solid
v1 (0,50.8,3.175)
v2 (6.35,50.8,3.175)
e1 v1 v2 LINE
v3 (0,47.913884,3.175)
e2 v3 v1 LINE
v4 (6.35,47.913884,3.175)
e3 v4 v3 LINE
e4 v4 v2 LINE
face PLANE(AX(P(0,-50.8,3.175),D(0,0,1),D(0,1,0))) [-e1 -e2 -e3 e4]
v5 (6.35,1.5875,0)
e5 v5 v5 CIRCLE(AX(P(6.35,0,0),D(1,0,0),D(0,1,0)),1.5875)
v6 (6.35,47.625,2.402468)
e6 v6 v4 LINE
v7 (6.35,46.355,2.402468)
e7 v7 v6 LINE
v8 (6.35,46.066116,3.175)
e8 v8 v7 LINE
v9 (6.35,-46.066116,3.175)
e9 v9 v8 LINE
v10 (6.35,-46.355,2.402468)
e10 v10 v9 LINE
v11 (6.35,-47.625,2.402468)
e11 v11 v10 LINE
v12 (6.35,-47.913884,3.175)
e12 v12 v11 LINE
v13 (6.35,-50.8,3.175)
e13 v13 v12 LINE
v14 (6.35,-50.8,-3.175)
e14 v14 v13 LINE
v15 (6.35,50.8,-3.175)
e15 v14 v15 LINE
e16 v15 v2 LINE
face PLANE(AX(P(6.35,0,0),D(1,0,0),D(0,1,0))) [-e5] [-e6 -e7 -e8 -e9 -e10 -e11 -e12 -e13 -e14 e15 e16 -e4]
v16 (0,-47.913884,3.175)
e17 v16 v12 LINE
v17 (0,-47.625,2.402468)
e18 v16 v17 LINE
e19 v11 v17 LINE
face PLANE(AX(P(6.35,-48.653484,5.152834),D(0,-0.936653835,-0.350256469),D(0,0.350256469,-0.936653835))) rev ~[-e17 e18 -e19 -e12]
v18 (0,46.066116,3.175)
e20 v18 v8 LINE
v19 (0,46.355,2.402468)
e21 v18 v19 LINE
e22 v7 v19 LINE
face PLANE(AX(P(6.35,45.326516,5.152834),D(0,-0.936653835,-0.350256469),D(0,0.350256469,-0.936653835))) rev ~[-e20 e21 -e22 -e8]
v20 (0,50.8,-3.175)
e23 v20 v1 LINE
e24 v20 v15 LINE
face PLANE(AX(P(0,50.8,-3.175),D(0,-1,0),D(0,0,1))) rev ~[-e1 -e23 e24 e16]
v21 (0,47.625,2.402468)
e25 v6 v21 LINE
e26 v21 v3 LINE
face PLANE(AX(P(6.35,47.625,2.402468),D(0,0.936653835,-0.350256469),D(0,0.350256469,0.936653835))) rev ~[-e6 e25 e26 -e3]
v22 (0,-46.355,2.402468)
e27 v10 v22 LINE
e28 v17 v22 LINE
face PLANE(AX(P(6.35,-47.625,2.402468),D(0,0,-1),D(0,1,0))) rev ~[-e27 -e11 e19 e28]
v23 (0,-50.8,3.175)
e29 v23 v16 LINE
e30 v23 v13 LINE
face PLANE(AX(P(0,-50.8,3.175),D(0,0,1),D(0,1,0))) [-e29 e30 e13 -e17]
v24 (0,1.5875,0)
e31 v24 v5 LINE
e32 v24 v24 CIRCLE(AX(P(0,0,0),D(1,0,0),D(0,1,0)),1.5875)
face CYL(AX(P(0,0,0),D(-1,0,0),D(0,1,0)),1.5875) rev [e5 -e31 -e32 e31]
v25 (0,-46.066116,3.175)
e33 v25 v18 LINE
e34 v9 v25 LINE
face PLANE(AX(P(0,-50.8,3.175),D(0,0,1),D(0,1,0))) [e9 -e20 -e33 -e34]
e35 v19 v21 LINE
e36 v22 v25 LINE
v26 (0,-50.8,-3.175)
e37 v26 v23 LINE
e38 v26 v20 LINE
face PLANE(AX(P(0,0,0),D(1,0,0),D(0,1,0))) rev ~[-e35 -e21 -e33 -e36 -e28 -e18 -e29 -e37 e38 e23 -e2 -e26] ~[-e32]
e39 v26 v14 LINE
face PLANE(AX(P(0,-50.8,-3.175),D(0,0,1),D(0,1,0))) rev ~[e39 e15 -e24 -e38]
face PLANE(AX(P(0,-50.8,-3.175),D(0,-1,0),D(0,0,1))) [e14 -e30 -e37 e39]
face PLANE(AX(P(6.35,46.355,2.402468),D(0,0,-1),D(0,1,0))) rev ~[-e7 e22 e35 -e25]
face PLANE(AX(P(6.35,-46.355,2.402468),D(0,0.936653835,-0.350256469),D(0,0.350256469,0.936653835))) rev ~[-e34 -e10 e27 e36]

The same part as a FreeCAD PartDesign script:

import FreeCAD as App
import Part
import Sketcher
from FreeCAD import Vector
Q = App.Units.Quantity

doc = App.newDocument("Part")
params = doc.addObject("Spreadsheet::Sheet", "Params")
for row, (alias, value) in enumerate([
    ("sketch1_width", "4 in"),
    ("sketch1_diameter", "0.125 in"),
    ("sketch1_height", "0.25 in"),
    ("pad1_length", "0.25 in"),
    ("sketch2_width", "0.05 in"),
    ("pocket1_length", "0.3 in"),
], start=1):
    params.set(f"A{row}", alias)
    params.set(f"B{row}", "=" + value)
    params.setAlias(f"B{row}", alias)

body = doc.addObject("PartDesign::Body", "Body")

# Sketch on YZ plane
sketch1 = body.newObject("Sketcher::SketchObject", "Sketch")
sketch1.AttachmentSupport = (doc.getObject("YZ_Plane"), [""])
sketch1.MapMode = "FlatFace"
sketch1.addGeometry([
    Part.LineSegment(Vector(-50.8, 3.2, 0), Vector(-50.8, -3.2, 0)),  # 0
    Part.LineSegment(Vector(-50.8, -3.2, 0), Vector(50.8, -3.2, 0)),  # 1
    Part.LineSegment(Vector(50.8, -3.2, 0), Vector(50.8, 3.2, 0)),  # 2
    Part.LineSegment(Vector(50.8, 3.2, 0), Vector(-50.8, 3.2, 0)),  # 3
    Part.Circle(Vector(0, 0, 0), Vector(0, 0, 1), 1.6),  # 4
], False)
sketch1.addConstraint([
    Sketcher.Constraint("Coincident", 0, 2, 1, 1),
    Sketcher.Constraint("Coincident", 1, 2, 2, 1),
    Sketcher.Constraint("Coincident", 2, 2, 3, 1),
    Sketcher.Constraint("Coincident", 3, 2, 0, 1),
    Sketcher.Constraint("Vertical", 0),
    Sketcher.Constraint("Horizontal", 1),
    Sketcher.Constraint("Vertical", 2),
    Sketcher.Constraint("Horizontal", 3),
    Sketcher.Constraint("Coincident", 4, 3, -1, 1),
    Sketcher.Constraint("Symmetric", 0, 2, 2, 2, -1, 1),
    Sketcher.Constraint("DistanceX", 1, 1, 1, 2, Q("4 in")),
    Sketcher.Constraint("Diameter", 4, Q("0.125 in")),
    Sketcher.Constraint("DistanceY", 0, 2, 0, 1, Q("0.25 in")),
])
sketch1.setExpression("Constraints[10]", "Params.sketch1_width")
sketch1.setExpression("Constraints[11]", "Params.sketch1_diameter")
sketch1.setExpression("Constraints[12]", "Params.sketch1_height")
pad1 = body.newObject("PartDesign::Pad", "Pad")
pad1.Profile = sketch1
pad1.setExpression("Length", "Params.pad1_length")

# Sketch on YZ plane
sketch2 = body.newObject("Sketcher::SketchObject", "Sketch001")
sketch2.AttachmentSupport = (doc.getObject("YZ_Plane"), [""])
sketch2.MapMode = "FlatFace"
sketch2.AttachmentOffset = App.Placement(Vector(0, 0, 0.25 * 25.4), App.Rotation())
sketch2.addGeometry([
    Part.LineSegment(Vector(-48.7, 5.2, 0), Vector(-47.6, 2.4, 0)),  # 0
    Part.LineSegment(Vector(-47.6, 2.4, 0), Vector(-46.4, 2.4, 0)),  # 1
    Part.LineSegment(Vector(-46.4, 2.4, 0), Vector(-45.3, 5.2, 0)),  # 2
    Part.LineSegment(Vector(-45.3, 5.2, 0), Vector(-48.7, 5.2, 0)),  # 3
    Part.LineSegment(Vector(45.3, 5.2, 0), Vector(46.4, 2.4, 0)),  # 4
    Part.LineSegment(Vector(46.4, 2.4, 0), Vector(47.6, 2.4, 0)),  # 5
    Part.LineSegment(Vector(47.6, 2.4, 0), Vector(48.7, 5.2, 0)),  # 6
    Part.LineSegment(Vector(48.7, 5.2, 0), Vector(45.3, 5.2, 0)),  # 7
], False)
sketch2.addConstraint([
    Sketcher.Constraint("Coincident", 0, 2, 1, 1),
    Sketcher.Constraint("Coincident", 1, 2, 2, 1),
    Sketcher.Constraint("Coincident", 2, 2, 3, 1),
    Sketcher.Constraint("Coincident", 3, 2, 0, 1),
    Sketcher.Constraint("Coincident", 4, 2, 5, 1),
    Sketcher.Constraint("Coincident", 5, 2, 6, 1),
    Sketcher.Constraint("Coincident", 6, 2, 7, 1),
    Sketcher.Constraint("Coincident", 7, 2, 4, 1),
    Sketcher.Constraint("Horizontal", 1),
    Sketcher.Constraint("Horizontal", 3),
    Sketcher.Constraint("Horizontal", 5),
    Sketcher.Constraint("Horizontal", 7),
    Sketcher.Constraint("Symmetric", 1, 2, 4, 2, -2),
    Sketcher.Constraint("Symmetric", 3, 2, 6, 2, -2),
    Sketcher.Constraint("Parallel", 0, 4),
    Sketcher.Constraint("Parallel", 2, 6),
    Sketcher.Constraint("Equal", 1, 5),
    Sketcher.Constraint("DistanceX", 1, 1, 1, 2, Q("0.05 in")),
    Sketcher.Constraint("DistanceX", 0, 2, 4, 2, Q("3.7 in")),
    Sketcher.Constraint("DistanceX", 3, 2, 3, 1, Q("3.326968 mm")),
    Sketcher.Constraint("Distance", 0, Q("2.936374 mm")),
    Sketcher.Constraint("DistanceY", -1, 1, 0, 2, Q("2.402468 mm")),
])
sketch2.setExpression("Constraints[17]", "Params.sketch2_width")
pocket1 = body.newObject("PartDesign::Pocket", "Pocket")
pocket1.Profile = sketch2
pocket1.setExpression("Length", "Params.pocket1_length")

doc.recompute()
